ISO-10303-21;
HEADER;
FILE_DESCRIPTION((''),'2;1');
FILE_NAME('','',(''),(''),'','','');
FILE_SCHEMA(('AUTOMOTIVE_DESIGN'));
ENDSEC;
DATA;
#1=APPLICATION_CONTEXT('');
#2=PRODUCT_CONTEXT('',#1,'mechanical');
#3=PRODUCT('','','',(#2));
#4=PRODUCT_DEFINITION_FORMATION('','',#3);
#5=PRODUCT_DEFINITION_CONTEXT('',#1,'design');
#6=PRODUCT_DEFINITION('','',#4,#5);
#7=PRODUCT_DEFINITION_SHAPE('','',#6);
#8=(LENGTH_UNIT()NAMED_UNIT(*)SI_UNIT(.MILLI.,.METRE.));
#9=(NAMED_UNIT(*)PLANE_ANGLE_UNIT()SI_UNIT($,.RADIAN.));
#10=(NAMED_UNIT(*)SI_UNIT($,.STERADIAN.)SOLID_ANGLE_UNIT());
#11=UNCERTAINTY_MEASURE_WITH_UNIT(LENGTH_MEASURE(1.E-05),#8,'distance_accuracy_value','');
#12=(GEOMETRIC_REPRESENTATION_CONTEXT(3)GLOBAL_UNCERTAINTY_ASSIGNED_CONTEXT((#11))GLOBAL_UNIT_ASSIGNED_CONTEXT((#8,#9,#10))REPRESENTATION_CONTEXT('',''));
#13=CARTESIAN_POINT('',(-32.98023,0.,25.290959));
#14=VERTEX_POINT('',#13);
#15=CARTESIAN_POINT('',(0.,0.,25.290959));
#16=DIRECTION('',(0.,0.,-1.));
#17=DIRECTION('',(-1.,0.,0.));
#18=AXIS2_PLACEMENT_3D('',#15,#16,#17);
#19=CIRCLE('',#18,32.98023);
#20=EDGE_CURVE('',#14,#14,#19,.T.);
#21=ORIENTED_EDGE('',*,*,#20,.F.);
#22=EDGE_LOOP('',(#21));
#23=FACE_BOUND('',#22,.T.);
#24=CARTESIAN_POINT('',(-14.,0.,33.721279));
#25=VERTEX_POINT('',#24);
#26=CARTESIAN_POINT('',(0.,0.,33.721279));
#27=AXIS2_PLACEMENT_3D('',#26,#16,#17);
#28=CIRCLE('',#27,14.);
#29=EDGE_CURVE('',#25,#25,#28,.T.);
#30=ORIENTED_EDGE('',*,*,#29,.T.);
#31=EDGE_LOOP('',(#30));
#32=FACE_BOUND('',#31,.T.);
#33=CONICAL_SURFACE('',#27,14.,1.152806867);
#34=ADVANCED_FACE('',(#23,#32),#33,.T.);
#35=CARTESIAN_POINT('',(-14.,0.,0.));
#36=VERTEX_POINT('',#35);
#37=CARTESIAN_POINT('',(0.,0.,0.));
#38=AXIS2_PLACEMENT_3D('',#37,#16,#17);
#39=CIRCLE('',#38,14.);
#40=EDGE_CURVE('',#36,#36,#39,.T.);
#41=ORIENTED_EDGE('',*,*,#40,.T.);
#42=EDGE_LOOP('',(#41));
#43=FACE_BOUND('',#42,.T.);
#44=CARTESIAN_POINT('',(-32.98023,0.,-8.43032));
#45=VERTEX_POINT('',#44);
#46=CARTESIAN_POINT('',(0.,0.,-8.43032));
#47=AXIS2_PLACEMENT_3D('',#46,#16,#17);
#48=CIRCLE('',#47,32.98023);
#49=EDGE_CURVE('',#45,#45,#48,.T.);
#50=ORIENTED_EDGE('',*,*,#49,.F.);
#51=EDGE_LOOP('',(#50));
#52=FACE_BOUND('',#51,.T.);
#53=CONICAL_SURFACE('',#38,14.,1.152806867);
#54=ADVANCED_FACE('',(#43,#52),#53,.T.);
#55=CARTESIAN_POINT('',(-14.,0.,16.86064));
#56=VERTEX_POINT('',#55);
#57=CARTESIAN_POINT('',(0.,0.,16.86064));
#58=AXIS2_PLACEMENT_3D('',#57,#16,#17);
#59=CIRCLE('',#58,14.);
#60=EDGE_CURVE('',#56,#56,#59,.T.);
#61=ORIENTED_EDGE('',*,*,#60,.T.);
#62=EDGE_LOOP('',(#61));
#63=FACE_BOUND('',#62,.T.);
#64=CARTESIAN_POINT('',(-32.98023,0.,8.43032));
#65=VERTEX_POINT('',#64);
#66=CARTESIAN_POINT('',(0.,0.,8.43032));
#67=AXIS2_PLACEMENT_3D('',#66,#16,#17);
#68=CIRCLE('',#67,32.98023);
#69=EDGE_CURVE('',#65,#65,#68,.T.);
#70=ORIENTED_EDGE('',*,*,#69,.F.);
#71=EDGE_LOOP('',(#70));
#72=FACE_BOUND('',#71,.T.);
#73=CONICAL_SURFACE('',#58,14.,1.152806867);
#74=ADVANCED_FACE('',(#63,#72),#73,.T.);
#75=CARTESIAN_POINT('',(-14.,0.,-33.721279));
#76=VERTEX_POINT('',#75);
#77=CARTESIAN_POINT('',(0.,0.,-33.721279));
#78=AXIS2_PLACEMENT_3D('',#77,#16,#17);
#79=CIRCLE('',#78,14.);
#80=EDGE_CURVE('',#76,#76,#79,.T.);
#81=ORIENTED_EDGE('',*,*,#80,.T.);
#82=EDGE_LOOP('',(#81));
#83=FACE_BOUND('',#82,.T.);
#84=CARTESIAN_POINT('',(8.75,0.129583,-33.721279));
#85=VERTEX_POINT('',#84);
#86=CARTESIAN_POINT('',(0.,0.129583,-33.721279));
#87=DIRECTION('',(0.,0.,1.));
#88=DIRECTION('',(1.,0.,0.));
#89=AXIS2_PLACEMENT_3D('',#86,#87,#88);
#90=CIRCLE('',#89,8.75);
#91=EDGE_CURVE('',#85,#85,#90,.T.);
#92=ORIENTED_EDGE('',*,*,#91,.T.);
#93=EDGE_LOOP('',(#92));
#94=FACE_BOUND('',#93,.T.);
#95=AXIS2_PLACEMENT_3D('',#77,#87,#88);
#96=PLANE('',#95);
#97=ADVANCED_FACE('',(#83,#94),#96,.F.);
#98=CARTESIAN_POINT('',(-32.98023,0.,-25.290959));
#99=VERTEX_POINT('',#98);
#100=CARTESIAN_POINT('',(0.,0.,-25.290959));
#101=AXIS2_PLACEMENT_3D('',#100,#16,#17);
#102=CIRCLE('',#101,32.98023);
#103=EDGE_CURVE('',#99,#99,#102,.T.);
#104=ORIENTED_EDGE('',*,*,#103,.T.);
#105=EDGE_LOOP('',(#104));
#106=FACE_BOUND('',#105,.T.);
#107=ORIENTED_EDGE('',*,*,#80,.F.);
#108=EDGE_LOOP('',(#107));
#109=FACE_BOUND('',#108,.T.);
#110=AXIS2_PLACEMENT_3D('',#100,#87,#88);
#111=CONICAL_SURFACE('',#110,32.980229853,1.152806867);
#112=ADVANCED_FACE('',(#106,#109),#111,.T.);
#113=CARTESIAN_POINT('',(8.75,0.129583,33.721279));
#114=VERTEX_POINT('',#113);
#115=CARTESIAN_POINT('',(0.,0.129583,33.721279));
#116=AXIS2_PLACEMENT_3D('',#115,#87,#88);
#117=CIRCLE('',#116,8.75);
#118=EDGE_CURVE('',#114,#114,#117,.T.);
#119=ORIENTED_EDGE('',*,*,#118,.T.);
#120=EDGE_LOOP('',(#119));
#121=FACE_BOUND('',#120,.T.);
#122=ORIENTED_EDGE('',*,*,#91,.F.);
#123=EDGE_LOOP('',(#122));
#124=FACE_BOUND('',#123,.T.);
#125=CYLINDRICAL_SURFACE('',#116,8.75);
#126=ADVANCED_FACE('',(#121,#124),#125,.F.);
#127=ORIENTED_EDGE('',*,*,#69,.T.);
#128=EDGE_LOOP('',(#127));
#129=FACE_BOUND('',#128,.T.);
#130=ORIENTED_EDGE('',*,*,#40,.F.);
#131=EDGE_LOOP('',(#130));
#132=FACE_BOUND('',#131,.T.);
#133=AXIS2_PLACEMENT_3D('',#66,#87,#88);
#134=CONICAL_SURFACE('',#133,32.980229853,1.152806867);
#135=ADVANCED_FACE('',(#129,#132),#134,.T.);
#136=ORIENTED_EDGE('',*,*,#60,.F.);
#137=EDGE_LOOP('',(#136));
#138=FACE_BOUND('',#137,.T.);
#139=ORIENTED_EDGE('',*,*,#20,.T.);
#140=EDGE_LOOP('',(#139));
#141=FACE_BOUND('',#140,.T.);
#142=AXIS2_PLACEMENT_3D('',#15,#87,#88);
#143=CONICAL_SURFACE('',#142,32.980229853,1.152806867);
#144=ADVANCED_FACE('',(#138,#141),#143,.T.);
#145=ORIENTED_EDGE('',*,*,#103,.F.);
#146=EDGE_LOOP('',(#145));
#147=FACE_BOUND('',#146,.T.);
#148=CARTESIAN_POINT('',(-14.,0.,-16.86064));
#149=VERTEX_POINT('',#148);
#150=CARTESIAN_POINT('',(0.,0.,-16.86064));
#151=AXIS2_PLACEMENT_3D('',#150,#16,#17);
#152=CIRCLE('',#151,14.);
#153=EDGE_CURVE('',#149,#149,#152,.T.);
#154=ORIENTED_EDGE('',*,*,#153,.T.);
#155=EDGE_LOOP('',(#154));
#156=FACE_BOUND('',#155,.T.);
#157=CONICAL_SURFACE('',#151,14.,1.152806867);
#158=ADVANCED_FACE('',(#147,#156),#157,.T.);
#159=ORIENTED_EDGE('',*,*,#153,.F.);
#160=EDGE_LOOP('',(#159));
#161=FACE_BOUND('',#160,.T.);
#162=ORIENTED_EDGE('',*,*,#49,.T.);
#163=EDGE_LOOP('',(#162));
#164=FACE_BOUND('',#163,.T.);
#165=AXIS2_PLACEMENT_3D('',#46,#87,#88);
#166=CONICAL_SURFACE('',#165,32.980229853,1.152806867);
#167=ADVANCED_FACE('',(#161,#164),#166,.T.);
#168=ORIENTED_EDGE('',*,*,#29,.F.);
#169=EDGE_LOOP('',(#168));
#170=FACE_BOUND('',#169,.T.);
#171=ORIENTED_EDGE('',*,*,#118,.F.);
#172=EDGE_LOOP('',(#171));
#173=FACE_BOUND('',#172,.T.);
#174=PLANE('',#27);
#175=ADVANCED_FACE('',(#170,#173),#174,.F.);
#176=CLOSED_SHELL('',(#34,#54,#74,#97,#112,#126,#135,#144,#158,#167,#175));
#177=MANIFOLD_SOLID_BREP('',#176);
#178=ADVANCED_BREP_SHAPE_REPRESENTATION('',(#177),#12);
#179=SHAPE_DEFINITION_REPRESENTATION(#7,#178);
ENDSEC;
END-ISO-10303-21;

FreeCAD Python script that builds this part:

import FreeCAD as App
import Part
import Sketcher

V = App.Vector


def add_polygon(sketch, points):
    """Adds a closed chain of lines whose ends are joined by coincident constraints."""
    first, n = sketch.GeometryCount, len(points)
    for a, b in zip(points, points[1:] + points[:1]):
        sketch.addGeometry(Part.LineSegment(App.Vector(*a, 0), App.Vector(*b, 0)), False)
    for i in range(n):
        sketch.addConstraint(Sketcher.Constraint("Coincident", first + i, 2, first + (i + 1) % n, 1))

doc = App.newDocument("Part")
body = doc.addObject("PartDesign::Body", "Body")

sketch1 = body.newObject("Sketcher::SketchObject", "Sketch")
sketch1.AttachmentSupport = (doc.getObject("XZ_Plane"), [""])
sketch1.MapMode = "FlatFace"
add_polygon(sketch1, [(0, -34), (0, 34), (14, 34), (33, 25), (14, 17), (33, 8), (14, 0), (33, -8), (14, -17), (33, -25), (14, -34)])
sketch1.addConstraint([
    Sketcher.Constraint("Vertical", 0),
    Sketcher.Constraint("Horizontal", 1),
    Sketcher.Constraint("Horizontal", 10),
    Sketcher.Constraint("Symmetric", 0, 2, 10, 2, -1, 1),
    Sketcher.Constraint("Symmetric", 4, 2, 6, 2, -1),
    Sketcher.Constraint("Symmetric", 3, 2, 7, 2, -1),
    Sketcher.Constraint("Symmetric", 2, 2, 8, 2, -1),
    Sketcher.Constraint("PointOnObject", 5, 2, -1),
    Sketcher.Constraint("Parallel", 2, 4),
    Sketcher.Constraint("Parallel", 3, 5),
    Sketcher.Constraint("Parallel", 4, 6),
    Sketcher.Constraint("Parallel", 7, 9),
    Sketcher.Constraint("Vertical", 1, 2, 3, 2),
    Sketcher.Constraint("Vertical", 2, 2, 4, 2),
    Sketcher.Constraint("Vertical", 3, 2, 5, 2),
    Sketcher.Constraint("DistanceX", 1, 1, 1, 2, 14.0),
    Sketcher.Constraint("DistanceY", 0, 1, 0, 2, 67.442558),
    Sketcher.Constraint("Distance", 2, 20.768231),
])
revolution = body.newObject("PartDesign::Revolution", "Revolution")
revolution.Profile = sketch1
revolution.ReferenceAxis = (sketch1, ["V_Axis"])
revolution.Angle = 360

sketch2 = body.newObject("Sketcher::SketchObject", "Sketch001")
sketch2.AttachmentSupport = (doc.getObject("XY_Plane"), [""])
sketch2.MapMode = "FlatFace"
sketch2.AttachmentOffset = App.Placement(V(0, 0, 33.721279), App.Rotation())
sketch2.addGeometry(Part.Circle(V(0, 0, 0), V(0, 0, 1), 9), False)
sketch2.addConstraint([
    Sketcher.Constraint("PointOnObject", 0, 3, -2),
    Sketcher.Constraint("Diameter", 0, 17.5),
    Sketcher.Constraint("DistanceY", -1, 1, 0, 3, 0.129583),
])
doc.recompute()
hole = body.newObject("PartDesign::Hole", "Hole")
hole.Profile = sketch2
hole.ThreadType = "None"
hole.Diameter = 17.5
hole.DepthType = "ThroughAll"

doc.recompute()
